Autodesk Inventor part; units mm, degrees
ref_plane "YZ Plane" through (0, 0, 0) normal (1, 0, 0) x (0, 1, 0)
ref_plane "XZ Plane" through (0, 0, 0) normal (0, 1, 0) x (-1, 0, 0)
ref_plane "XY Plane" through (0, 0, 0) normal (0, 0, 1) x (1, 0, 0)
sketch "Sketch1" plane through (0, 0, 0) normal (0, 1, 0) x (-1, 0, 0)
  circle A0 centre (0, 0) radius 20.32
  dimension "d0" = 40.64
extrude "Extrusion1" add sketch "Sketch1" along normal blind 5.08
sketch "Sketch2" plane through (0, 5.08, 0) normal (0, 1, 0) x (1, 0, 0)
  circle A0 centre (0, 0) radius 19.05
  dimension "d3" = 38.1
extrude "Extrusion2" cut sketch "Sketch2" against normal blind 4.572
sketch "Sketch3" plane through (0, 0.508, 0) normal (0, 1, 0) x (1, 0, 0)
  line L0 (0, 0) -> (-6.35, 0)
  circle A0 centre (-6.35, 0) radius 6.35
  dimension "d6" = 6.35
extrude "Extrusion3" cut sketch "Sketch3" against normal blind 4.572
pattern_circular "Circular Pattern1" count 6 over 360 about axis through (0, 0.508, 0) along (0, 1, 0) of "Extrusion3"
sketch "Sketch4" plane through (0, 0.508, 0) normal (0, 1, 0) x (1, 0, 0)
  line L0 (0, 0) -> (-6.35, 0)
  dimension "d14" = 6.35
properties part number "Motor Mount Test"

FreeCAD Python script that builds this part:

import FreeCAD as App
import Part
import Sketcher

V = App.Vector
Q = App.Units.Quantity

doc = App.newDocument("Part")
body = doc.addObject("PartDesign::Body", "Body")

# Sketch on XZ plane
sketch1 = doc.addObject("Sketcher::SketchObject", "Sketch")
body.addObject(sketch1)
sketch1.AttachmentSupport = (doc.XZ_Plane, [""])
sketch1.MapMode = "FlatFace"
sketch1.addGeometry(Part.Circle(V(0, 0, 0), V(0, 0, 1), 20), False)
sketch1.addConstraint(Sketcher.Constraint("Coincident", 0, 3, -1, 1))
sketch1.addConstraint(Sketcher.Constraint("Diameter", 0, Q("1.6 in")))
pad1 = doc.addObject("PartDesign::Pad", "Pad")
body.addObject(pad1)
pad1.Profile = sketch1
pad1.Length = Q("0.2 in")
pad1.Reversed = True

# Sketch on XZ plane
sketch2 = doc.addObject("Sketcher::SketchObject", "Sketch001")
body.addObject(sketch2)
sketch2.AttachmentSupport = (doc.XZ_Plane, [""])
sketch2.MapMode = "FlatFace"
sketch2.AttachmentOffset = App.Placement(V(0, 0, -0.2 * 25.4), App.Rotation())
sketch2.addGeometry(Part.Circle(V(0, 0, 0), V(0, 0, 1), 19), False)
sketch2.addConstraint(Sketcher.Constraint("Coincident", 0, 3, -1, 1))
sketch2.addConstraint(Sketcher.Constraint("Diameter", 0, Q("1.5 in")))
pocket1 = doc.addObject("PartDesign::Pocket", "Pocket")
body.addObject(pocket1)
pocket1.Profile = sketch2
pocket1.Length = Q("0.18 in")
pocket1.Reversed = True

# Sketch on XZ plane
sketch3 = doc.addObject("Sketcher::SketchObject", "Sketch002")
body.addObject(sketch3)
sketch3.AttachmentSupport = (doc.XZ_Plane, [""])
sketch3.MapMode = "FlatFace"
sketch3.AttachmentOffset = App.Placement(V(0, 0, -0.02 * 25.4), App.Rotation())
sketch3.addGeometry(Part.Circle(V(-6, 0, 0), V(0, 0, 1), 6), False)
sketch3.addConstraint(Sketcher.Constraint("PointOnObject", 0, 3, -1))
sketch3.addConstraint(Sketcher.Constraint("Diameter", 0, Q("0.5 in")))
sketch3.addConstraint(Sketcher.Constraint("DistanceX", 0, 3, -1, 1, Q("0.25 in")))
pocket2 = doc.addObject("PartDesign::Pocket", "Pocket001")
body.addObject(pocket2)
pocket2.Profile = sketch3
pocket2.Length = Q("0.18 in")
pocket2.Reversed = True
doc.recompute()

polarpattern = doc.addObject("PartDesign::PolarPattern", "PolarPattern")
body.addObject(polarpattern)
polarpattern.Originals = [pocket2]
polarpattern.Axis = (doc.Y_Axis, [""])
polarpattern.Angle = 360
polarpattern.Occurrences = 6
body.Tip = polarpattern

doc.recompute()
